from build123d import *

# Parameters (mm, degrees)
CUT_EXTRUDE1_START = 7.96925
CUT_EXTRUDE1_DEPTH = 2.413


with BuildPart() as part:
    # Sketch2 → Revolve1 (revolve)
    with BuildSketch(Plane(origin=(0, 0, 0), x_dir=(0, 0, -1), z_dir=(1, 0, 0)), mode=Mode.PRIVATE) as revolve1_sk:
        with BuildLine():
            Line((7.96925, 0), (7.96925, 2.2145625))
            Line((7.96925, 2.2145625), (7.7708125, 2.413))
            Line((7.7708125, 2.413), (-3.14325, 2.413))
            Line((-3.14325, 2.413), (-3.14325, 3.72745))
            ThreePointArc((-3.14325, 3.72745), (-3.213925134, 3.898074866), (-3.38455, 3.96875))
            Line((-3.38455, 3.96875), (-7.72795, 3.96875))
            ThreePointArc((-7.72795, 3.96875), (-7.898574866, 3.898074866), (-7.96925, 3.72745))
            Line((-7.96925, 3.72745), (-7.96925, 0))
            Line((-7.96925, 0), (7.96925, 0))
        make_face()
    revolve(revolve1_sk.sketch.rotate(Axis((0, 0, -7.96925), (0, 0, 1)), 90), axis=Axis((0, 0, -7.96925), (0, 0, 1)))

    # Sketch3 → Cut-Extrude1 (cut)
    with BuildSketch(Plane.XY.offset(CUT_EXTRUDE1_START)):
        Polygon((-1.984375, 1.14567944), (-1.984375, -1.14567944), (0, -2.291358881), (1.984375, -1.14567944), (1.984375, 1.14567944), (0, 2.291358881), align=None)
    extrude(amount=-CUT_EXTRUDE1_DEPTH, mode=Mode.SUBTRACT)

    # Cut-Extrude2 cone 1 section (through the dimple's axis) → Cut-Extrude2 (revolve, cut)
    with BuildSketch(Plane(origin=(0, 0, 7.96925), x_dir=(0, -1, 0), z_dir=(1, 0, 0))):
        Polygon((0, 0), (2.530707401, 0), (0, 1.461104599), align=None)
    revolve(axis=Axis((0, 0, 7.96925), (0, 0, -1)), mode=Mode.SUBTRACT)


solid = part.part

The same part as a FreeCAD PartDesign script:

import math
import FreeCAD as App
import Part
import Sketcher
from FreeCAD import Vector
Q = App.Units.Quantity


def add_polygon(sketch, points):
    """Adds a closed chain of lines whose ends are joined by coincident constraints."""
    first, n = sketch.GeometryCount, len(points)
    for a, b in zip(points, points[1:] + points[:1]):
        sketch.addGeometry(Part.LineSegment(App.Vector(*a, 0), App.Vector(*b, 0)), False)
    for i in range(n):
        sketch.addConstraint(Sketcher.Constraint("Coincident", first + i, 2, first + (i + 1) % n, 1))

doc = App.newDocument("Part")
body = doc.addObject("PartDesign::Body", "Body")

# Sketch on YZ plane
sketch1 = body.newObject("Sketcher::SketchObject", "Sketch")
sketch1.AttachmentSupport = (doc.getObject("YZ_Plane"), [""])
sketch1.MapMode = "FlatFace"
sketch1.addGeometry([
    Part.LineSegment(Vector(0, -7.96925, 0), Vector(2.214562, -7.96925, 0)),  # 0
    Part.LineSegment(Vector(2.214562, -7.96925, 0), Vector(2.413, -7.770812, 0)),  # 1
    Part.LineSegment(Vector(2.413, -7.770812, 0), Vector(2.413, 3.14325, 0)),  # 2
    Part.LineSegment(Vector(2.413, 3.14325, 0), Vector(3.72745, 3.14325, 0)),  # 3
    Part.ArcOfCircle(Part.Circle(Vector(3.72745, 3.38455, 0), Vector(0, 0, 1), 0.2413), math.radians(-90), math.radians(0)),  # 4
    Part.LineSegment(Vector(3.96875, 3.38455, 0), Vector(3.96875, 7.72795, 0)),  # 5
    Part.ArcOfCircle(Part.Circle(Vector(3.72745, 7.72795, 0), Vector(0, 0, 1), 0.2413), math.radians(0), math.radians(90)),  # 6
    Part.LineSegment(Vector(3.72745, 7.96925, 0), Vector(0, 7.96925, 0)),  # 7
    Part.LineSegment(Vector(0, 7.96925, 0), Vector(0, -7.96925, 0)),  # 8
], False)
sketch1.addConstraint([
    Sketcher.Constraint("Coincident", 0, 2, 1, 1),
    Sketcher.Constraint("Coincident", 1, 2, 2, 1),
    Sketcher.Constraint("Coincident", 2, 2, 3, 1),
    Sketcher.Constraint("Tangent", 3, 2, 4, 1),
    Sketcher.Constraint("Tangent", 4, 2, 5, 1),
    Sketcher.Constraint("Tangent", 5, 2, 6, 1),
    Sketcher.Constraint("Tangent", 6, 2, 7, 1),
    Sketcher.Constraint("Coincident", 7, 2, 8, 1),
    Sketcher.Constraint("Coincident", 8, 2, 0, 1),
    Sketcher.Constraint("Horizontal", 0),
    Sketcher.Constraint("Vertical", 2),
    Sketcher.Constraint("Horizontal", 3),
    Sketcher.Constraint("Vertical", 5),
    Sketcher.Constraint("Horizontal", 7),
    Sketcher.Constraint("Vertical", 8),
    Sketcher.Constraint("Equal", 4, 6),
    Sketcher.Constraint("Symmetric", 7, 2, 8, 2, -1, 1),
    Sketcher.Constraint("Angle", 1, Q("45 deg")),
    Sketcher.Constraint("Radius", 4, Q("0.0095 in")),
    Sketcher.Constraint("DistanceY", 5, 1, 5, 2, Q("0.171 in")),
    Sketcher.Constraint("DistanceY", 8, 2, 8, 1, Q("0.6275 in")),
    Sketcher.Constraint("DistanceX", -1, 1, 1, 2, Q("0.095 in")),
    Sketcher.Constraint("DistanceX", -1, 1, 4, 2, Q("0.15625 in")),
    Sketcher.Constraint("DistanceX", 0, 1, 0, 2, Q("2.214562 mm")),
])
revolution = body.newObject("PartDesign::Revolution", "Revolution")
revolution.Profile = sketch1
revolution.ReferenceAxis = (sketch1, ["V_Axis"])
revolution.Angle = 360

# Sketch on XY plane
sketch2 = body.newObject("Sketcher::SketchObject", "Sketch001")
sketch2.AttachmentSupport = (doc.getObject("XY_Plane"), [""])
sketch2.MapMode = "FlatFace"
sketch2.AttachmentOffset = App.Placement(Vector(0, 0, 7.96925), App.Rotation())
add_polygon(sketch2, [(-1.984375, 1.145679), (-1.984375, -1.145679), (0, -2.291359), (1.984375, -1.145679), (1.984375, 1.145679), (0, 2.291359)])  # lines 0-5
sketch2.addConstraint([
    Sketcher.Constraint("Vertical", 0),
    Sketcher.Constraint("Vertical", 3),
    Sketcher.Constraint("Symmetric", 0, 2, 3, 2, -1, 1),
    Sketcher.Constraint("Symmetric", 1, 2, 4, 2, -1, 1),
    Sketcher.Constraint("PointOnObject", 1, 2, -2),
    Sketcher.Constraint("Parallel", 2, 5),
    Sketcher.Constraint("Horizontal", 0, 2, 2, 2),
    Sketcher.Constraint("Angle", 1, Q("-30 deg")),
    Sketcher.Constraint("DistanceX", 0, 2, -1, 1, Q("0.078125 in")),
    Sketcher.Constraint("DistanceY", 0, 2, 0, 1, Q("2.291359 mm")),
])
pocket1 = body.newObject("PartDesign::Pocket", "Pocket")
pocket1.Profile = sketch2
pocket1.Length = Q("0.095 in")

# Sketch on YZ plane
sketch3 = body.newObject("Sketcher::SketchObject", "Sketch002")
sketch3.AttachmentSupport = (doc.getObject("YZ_Plane"), [""])
sketch3.MapMode = "FlatFace"
add_polygon(sketch3, [(0, 7.96925), (-2.530707, 7.96925), (0, 6.508145)])  # lines 0-2
sketch3.addConstraint([
    Sketcher.Constraint("Horizontal", 0),
    Sketcher.Constraint("Vertical", 2),
    Sketcher.Constraint("PointOnObject", 1, 2, -2),
    Sketcher.Constraint("Angle", 1, Q("-30 deg")),
    Sketcher.Constraint("Distance", 1, Q("2.922209 mm")),
    Sketcher.Constraint("DistanceY", -1, 1, 0, 2, Q("7.96925 mm")),
])
groove = body.newObject("PartDesign::Groove", "Groove")
groove.Profile = sketch3
groove.ReferenceAxis = (sketch3, ["V_Axis"])
groove.Angle = 360

doc.recompute()
